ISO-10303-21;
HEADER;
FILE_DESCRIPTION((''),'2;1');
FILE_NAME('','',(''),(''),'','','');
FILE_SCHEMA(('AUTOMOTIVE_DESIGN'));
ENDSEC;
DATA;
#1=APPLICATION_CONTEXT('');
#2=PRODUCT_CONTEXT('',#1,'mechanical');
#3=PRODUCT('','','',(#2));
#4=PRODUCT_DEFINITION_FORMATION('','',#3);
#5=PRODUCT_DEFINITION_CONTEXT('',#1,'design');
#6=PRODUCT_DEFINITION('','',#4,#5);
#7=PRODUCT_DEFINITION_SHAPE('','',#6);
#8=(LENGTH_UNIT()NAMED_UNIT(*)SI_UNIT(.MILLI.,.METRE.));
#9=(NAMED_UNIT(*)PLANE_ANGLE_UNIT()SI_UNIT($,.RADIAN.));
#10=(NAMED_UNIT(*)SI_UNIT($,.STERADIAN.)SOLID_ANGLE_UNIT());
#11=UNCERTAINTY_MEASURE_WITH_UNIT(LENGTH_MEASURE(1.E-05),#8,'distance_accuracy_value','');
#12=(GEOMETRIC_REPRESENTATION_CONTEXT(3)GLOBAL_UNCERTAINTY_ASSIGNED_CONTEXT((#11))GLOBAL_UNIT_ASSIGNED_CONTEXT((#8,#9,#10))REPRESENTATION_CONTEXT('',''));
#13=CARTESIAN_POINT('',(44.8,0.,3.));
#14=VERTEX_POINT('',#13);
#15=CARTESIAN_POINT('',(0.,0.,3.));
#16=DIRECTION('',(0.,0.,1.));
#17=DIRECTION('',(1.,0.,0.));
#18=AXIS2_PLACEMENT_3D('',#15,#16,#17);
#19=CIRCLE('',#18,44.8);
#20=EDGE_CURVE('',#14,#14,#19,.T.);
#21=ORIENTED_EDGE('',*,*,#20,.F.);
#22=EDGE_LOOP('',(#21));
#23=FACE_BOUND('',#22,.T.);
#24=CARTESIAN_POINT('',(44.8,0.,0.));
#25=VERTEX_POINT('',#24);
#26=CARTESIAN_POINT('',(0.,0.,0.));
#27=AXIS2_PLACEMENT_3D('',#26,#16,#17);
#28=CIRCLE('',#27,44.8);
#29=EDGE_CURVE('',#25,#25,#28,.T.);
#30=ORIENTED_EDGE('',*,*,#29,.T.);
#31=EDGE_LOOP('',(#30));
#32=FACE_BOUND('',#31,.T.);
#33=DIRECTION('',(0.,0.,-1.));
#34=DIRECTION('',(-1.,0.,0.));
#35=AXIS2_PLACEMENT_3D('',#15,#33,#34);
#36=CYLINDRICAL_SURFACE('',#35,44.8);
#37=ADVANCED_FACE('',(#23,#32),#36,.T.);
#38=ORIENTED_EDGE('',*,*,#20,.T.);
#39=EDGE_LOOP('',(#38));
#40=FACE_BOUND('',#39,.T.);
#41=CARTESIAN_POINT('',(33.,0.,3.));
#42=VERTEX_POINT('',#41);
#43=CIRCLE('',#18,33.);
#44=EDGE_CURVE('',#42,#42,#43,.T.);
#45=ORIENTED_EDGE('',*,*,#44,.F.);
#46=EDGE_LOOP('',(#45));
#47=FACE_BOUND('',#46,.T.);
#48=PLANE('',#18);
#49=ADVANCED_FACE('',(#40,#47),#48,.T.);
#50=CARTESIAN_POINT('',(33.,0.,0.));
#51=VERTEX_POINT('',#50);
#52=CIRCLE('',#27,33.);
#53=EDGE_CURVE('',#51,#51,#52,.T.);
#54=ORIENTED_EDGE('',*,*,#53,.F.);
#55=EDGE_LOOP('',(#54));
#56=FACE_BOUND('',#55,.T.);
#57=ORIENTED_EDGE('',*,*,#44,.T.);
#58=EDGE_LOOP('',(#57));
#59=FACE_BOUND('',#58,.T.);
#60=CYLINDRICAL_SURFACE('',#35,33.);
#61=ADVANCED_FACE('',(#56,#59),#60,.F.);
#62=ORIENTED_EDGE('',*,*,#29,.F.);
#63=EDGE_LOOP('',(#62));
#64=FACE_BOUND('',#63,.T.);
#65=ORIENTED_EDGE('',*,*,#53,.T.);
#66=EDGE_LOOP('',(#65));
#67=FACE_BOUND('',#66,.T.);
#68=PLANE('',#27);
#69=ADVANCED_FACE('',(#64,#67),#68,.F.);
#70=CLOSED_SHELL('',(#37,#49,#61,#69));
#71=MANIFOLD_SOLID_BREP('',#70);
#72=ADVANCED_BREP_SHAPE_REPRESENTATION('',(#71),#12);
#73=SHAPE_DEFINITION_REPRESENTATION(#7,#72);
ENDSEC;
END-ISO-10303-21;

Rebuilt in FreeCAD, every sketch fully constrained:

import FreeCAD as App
import Part
import Sketcher

V = App.Vector

doc = App.newDocument("Part")
body = doc.addObject("PartDesign::Body", "Body")

# Sketch on XY plane
sketch1 = body.newObject("Sketcher::SketchObject", "Sketch")
sketch1.AttachmentSupport = (doc.getObject("XY_Plane"), [""])
sketch1.MapMode = "FlatFace"
sketch1.addGeometry([
    Part.Circle(V(0, 0, 0), V(0, 0, 1), 44.8),
    Part.Circle(V(0, 0, 0), V(0, 0, 1), 33),
], False)
sketch1.addConstraint([
    Sketcher.Constraint("Coincident", 0, 3, -1, 1),
    Sketcher.Constraint("Coincident", 1, 3, -1, 1),
    Sketcher.Constraint("Diameter", 1, 66.0),
    Sketcher.Constraint("Diameter", 0, 89.6),
])
pad1 = body.newObject("PartDesign::Pad", "Pad")
pad1.Profile = sketch1
pad1.Length = 3

doc.recompute()
